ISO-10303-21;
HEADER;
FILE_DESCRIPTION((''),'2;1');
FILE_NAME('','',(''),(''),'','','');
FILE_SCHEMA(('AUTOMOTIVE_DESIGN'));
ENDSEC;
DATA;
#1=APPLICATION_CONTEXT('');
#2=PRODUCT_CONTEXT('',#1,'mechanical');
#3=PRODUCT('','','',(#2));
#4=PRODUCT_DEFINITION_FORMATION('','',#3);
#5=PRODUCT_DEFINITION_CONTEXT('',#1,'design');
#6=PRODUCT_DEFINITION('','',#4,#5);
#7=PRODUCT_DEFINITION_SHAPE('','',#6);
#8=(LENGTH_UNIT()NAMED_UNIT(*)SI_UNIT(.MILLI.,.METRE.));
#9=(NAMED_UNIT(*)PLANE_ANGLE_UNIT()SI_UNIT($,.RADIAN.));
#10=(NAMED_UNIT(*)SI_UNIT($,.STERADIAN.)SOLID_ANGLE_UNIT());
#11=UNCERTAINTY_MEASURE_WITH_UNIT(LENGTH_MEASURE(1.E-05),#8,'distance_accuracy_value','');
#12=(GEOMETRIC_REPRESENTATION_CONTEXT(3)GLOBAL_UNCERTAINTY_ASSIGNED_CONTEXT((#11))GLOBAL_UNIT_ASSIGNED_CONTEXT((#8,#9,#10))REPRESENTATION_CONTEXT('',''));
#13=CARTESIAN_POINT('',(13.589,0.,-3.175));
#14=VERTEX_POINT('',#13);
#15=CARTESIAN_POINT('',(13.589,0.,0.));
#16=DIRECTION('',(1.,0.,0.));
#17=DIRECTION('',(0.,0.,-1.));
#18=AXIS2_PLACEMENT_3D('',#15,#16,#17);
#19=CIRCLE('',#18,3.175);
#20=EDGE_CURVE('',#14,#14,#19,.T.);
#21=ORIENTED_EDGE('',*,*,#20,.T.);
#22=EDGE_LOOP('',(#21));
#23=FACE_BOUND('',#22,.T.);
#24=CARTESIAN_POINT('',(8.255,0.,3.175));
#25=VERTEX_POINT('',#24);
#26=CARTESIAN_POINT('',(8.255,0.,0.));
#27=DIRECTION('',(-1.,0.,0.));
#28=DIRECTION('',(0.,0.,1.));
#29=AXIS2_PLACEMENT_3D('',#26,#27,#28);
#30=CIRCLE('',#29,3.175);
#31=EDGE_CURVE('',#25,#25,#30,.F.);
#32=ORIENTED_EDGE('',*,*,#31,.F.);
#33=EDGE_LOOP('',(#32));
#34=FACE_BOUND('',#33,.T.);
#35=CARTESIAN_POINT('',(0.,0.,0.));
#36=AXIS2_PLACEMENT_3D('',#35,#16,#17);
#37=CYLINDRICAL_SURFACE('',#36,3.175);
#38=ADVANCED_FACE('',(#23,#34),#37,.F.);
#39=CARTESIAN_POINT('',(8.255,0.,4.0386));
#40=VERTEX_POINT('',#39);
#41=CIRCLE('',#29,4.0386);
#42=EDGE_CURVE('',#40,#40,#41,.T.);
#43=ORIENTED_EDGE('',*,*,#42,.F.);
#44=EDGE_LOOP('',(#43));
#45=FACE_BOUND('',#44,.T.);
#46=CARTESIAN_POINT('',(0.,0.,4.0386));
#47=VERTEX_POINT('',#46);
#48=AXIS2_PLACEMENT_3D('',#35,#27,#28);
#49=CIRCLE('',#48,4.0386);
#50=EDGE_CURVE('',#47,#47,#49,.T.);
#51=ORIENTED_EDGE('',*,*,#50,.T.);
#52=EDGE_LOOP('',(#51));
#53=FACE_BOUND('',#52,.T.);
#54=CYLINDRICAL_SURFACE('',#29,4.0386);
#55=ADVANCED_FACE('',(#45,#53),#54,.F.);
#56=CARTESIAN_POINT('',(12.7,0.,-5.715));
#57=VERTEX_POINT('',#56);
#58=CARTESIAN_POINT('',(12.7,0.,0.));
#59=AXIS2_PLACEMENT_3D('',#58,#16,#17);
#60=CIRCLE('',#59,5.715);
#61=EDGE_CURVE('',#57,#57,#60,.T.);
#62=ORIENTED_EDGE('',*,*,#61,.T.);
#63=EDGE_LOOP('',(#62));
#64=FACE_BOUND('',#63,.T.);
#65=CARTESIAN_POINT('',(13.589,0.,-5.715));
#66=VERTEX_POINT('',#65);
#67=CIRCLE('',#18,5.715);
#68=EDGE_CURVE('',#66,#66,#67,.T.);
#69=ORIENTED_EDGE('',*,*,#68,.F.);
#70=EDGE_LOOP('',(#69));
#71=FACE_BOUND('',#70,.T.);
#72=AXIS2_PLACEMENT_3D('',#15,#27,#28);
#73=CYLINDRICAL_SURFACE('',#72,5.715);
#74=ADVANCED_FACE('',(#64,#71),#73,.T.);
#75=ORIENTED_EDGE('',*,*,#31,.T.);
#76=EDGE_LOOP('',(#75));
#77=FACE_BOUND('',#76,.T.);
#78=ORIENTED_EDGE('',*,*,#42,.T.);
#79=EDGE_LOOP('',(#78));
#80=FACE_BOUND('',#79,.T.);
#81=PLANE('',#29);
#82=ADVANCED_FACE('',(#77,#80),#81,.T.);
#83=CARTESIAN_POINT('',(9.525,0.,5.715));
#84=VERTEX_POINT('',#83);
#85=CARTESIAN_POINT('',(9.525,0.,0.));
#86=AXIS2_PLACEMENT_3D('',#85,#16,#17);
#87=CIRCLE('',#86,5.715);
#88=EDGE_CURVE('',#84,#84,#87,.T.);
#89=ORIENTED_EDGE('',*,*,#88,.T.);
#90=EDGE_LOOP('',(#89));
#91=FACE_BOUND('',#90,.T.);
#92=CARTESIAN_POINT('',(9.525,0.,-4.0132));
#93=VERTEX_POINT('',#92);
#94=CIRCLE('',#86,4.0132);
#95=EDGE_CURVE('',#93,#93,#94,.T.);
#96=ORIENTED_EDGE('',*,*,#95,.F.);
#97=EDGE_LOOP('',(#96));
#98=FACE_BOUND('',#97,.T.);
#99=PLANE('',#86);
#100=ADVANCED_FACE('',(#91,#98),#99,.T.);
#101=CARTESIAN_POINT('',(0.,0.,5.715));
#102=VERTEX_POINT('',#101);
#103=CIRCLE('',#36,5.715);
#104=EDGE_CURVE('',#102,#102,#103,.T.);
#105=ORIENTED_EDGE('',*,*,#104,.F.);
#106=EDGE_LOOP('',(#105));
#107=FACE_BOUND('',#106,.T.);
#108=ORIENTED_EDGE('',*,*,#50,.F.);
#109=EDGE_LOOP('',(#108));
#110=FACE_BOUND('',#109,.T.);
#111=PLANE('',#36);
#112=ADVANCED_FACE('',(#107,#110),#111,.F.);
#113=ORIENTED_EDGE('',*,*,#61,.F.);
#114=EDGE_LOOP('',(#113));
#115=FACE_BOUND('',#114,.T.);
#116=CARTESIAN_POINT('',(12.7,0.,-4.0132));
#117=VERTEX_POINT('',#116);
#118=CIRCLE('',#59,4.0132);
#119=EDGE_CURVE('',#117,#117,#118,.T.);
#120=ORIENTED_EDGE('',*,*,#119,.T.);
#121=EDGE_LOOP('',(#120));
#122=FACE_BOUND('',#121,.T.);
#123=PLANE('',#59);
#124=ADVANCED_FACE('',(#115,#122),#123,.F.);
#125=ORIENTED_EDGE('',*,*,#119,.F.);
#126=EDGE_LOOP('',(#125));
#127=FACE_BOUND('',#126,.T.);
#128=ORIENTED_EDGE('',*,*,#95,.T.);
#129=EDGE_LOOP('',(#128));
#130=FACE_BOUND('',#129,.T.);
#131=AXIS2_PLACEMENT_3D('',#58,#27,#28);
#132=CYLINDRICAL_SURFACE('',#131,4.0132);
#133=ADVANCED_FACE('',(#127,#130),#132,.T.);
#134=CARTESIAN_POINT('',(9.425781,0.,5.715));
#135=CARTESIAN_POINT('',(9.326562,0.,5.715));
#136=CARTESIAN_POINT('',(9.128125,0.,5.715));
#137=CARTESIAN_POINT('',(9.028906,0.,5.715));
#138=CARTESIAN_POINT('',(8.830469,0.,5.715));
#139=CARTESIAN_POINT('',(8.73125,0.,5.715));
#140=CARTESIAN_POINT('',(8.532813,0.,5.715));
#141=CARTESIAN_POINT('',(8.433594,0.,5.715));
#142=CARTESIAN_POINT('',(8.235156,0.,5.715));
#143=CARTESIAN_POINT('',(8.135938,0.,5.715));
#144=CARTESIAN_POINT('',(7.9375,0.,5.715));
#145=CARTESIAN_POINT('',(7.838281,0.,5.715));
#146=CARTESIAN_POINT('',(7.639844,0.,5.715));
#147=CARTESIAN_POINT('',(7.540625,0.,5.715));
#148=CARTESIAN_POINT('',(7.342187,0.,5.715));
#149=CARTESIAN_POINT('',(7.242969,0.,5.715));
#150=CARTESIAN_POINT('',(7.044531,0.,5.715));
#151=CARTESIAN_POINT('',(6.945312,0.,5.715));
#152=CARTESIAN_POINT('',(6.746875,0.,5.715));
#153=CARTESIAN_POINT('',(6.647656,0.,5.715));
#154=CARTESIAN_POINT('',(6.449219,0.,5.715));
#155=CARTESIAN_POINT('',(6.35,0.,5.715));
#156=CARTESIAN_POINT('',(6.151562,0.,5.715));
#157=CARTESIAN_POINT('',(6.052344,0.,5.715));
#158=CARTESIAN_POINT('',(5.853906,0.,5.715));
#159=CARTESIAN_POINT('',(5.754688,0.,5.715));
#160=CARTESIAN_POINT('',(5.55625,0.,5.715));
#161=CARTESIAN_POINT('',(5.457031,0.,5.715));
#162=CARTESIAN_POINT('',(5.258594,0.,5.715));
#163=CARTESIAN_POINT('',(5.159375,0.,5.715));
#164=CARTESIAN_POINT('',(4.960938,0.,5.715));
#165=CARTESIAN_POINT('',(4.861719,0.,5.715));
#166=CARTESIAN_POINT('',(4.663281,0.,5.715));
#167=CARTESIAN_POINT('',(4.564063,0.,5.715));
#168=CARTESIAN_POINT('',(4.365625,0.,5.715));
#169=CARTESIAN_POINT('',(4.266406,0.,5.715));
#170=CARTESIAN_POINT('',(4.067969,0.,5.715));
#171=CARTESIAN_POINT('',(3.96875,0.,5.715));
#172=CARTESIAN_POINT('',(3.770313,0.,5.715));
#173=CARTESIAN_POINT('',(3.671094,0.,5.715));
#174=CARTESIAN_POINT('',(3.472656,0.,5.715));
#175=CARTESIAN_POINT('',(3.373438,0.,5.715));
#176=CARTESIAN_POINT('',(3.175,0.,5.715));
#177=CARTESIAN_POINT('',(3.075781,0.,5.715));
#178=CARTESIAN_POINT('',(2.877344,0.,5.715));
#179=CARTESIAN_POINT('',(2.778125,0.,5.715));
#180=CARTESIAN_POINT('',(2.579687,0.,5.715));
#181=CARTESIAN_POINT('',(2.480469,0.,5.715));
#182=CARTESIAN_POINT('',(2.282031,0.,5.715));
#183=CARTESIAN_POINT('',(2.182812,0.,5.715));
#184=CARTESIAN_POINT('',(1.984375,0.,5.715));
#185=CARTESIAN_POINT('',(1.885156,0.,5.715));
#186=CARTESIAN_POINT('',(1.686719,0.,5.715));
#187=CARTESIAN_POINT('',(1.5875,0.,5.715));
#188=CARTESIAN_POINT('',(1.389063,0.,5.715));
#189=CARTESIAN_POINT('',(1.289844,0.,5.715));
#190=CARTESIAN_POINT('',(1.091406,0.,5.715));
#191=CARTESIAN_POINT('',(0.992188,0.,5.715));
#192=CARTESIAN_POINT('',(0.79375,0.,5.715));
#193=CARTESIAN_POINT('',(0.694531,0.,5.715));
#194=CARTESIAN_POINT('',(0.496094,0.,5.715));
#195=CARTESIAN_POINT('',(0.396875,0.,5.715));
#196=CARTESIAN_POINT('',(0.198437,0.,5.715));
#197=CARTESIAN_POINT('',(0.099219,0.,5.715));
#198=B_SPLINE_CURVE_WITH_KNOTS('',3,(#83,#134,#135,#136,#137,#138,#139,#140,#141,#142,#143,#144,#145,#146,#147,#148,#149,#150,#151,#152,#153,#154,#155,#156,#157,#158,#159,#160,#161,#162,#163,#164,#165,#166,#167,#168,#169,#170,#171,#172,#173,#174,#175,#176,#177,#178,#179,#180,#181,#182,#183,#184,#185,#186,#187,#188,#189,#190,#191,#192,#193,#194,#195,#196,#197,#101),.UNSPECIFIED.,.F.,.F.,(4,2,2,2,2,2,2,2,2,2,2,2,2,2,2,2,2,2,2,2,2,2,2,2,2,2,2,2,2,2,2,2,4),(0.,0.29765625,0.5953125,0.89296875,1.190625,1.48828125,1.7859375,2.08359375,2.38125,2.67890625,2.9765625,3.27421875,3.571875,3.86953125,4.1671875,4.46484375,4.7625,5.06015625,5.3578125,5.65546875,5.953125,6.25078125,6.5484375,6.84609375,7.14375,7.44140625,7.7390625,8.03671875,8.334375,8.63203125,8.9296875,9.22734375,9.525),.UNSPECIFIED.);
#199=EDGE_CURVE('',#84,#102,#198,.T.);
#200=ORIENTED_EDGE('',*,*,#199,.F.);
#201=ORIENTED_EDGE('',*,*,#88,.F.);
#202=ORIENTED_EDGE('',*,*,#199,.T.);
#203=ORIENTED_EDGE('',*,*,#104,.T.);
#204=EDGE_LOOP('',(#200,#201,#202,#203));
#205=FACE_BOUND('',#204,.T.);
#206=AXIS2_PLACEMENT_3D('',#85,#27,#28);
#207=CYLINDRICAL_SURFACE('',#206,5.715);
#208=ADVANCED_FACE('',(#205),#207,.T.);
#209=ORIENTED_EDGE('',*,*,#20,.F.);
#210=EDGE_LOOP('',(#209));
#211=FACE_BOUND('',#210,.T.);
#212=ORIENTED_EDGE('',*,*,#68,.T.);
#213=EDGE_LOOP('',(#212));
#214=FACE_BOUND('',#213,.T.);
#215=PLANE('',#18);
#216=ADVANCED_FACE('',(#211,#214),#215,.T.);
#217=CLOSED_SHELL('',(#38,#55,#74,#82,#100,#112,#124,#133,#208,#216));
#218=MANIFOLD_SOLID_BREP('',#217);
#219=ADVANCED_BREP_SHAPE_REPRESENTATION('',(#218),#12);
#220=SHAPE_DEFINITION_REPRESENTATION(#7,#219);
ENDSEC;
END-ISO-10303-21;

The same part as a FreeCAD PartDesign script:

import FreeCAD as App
import Part
import Sketcher
from FreeCAD import Vector
Q = App.Units.Quantity

doc = App.newDocument("Part")
body = doc.addObject("PartDesign::Body", "Body")

# Sketch on YZ plane
sketch1 = doc.addObject("Sketcher::SketchObject", "Sketch")
body.addObject(sketch1)
sketch1.AttachmentSupport = (doc.YZ_Plane, [""])
sketch1.MapMode = "FlatFace"
sketch1.addGeometry(Part.Circle(Vector(0, 0, 0), Vector(0, 0, 1), 5.715), False)
sketch1.addConstraint([
    Sketcher.Constraint("Coincident", 0, 3, -1, 1),
    Sketcher.Constraint("Diameter", 0, Q("0.45 in")),
])
pad1 = doc.addObject("PartDesign::Pad", "Pad")
body.addObject(pad1)
pad1.Profile = sketch1
pad1.Length = Q("0.375 in")

# Sketch on YZ plane
sketch2 = doc.addObject("Sketcher::SketchObject", "Sketch001")
body.addObject(sketch2)
sketch2.AttachmentSupport = (doc.YZ_Plane, [""])
sketch2.MapMode = "FlatFace"
sketch2.AttachmentOffset = App.Placement(Vector(0, 0, 0.375 * 25.4), App.Rotation())
sketch2.addGeometry(Part.Circle(Vector(0, 0, 0), Vector(0, 0, 1), 4.0132), False)
sketch2.addConstraint([
    Sketcher.Constraint("Coincident", 0, 3, -1, 1),
    Sketcher.Constraint("Diameter", 0, Q("0.316 in")),
])
pad2 = doc.addObject("PartDesign::Pad", "Pad001")
body.addObject(pad2)
pad2.Profile = sketch2
pad2.Length = Q("0.125 in")

# Sketch on YZ plane
sketch3 = doc.addObject("Sketcher::SketchObject", "Sketch002")
body.addObject(sketch3)
sketch3.AttachmentSupport = (doc.YZ_Plane, [""])
sketch3.MapMode = "FlatFace"
sketch3.AttachmentOffset = App.Placement(Vector(0, 0, 0.5 * 25.4), App.Rotation())
sketch3.addGeometry(Part.Circle(Vector(0, 0, 0), Vector(0, 0, 1), 5.715), False)
sketch3.addConstraint([
    Sketcher.Constraint("Coincident", 0, 3, -1, 1),
    Sketcher.Constraint("Diameter", 0, Q("0.45 in")),
])
pad3 = doc.addObject("PartDesign::Pad", "Pad002")
body.addObject(pad3)
pad3.Profile = sketch3
pad3.Length = Q("0.035 in")

# Sketch on YZ plane
sketch4 = doc.addObject("Sketcher::SketchObject", "Sketch003")
body.addObject(sketch4)
sketch4.AttachmentSupport = (doc.YZ_Plane, [""])
sketch4.MapMode = "FlatFace"
sketch4.AttachmentOffset = App.Placement(Vector(0, 0, 0.535 * 25.4), App.Rotation())
sketch4.addGeometry(Part.Circle(Vector(0, 0, 0), Vector(0, 0, 1), 3.175), False)
sketch4.addConstraint([
    Sketcher.Constraint("Coincident", 0, 3, -1, 1),
    Sketcher.Constraint("Diameter", 0, Q("0.25 in")),
])
pocket1 = doc.addObject("PartDesign::Pocket", "Pocket")
body.addObject(pocket1)
pocket1.Profile = sketch4
pocket1.Type = "ThroughAll"

# Sketch on YZ plane
sketch5 = doc.addObject("Sketcher::SketchObject", "Sketch004")
body.addObject(sketch5)
sketch5.AttachmentSupport = (doc.YZ_Plane, [""])
sketch5.MapMode = "FlatFace"
sketch5.addGeometry(Part.Circle(Vector(0, 0, 0), Vector(0, 0, 1), 4.0386), False)
sketch5.addConstraint([
    Sketcher.Constraint("Coincident", 0, 3, -1, 1),
    Sketcher.Constraint("Diameter", 0, Q("0.318 in")),
])
pocket2 = doc.addObject("PartDesign::Pocket", "Pocket001")
body.addObject(pocket2)
pocket2.Profile = sketch5
pocket2.Length = Q("0.325 in")
pocket2.Reversed = True

doc.recompute()
